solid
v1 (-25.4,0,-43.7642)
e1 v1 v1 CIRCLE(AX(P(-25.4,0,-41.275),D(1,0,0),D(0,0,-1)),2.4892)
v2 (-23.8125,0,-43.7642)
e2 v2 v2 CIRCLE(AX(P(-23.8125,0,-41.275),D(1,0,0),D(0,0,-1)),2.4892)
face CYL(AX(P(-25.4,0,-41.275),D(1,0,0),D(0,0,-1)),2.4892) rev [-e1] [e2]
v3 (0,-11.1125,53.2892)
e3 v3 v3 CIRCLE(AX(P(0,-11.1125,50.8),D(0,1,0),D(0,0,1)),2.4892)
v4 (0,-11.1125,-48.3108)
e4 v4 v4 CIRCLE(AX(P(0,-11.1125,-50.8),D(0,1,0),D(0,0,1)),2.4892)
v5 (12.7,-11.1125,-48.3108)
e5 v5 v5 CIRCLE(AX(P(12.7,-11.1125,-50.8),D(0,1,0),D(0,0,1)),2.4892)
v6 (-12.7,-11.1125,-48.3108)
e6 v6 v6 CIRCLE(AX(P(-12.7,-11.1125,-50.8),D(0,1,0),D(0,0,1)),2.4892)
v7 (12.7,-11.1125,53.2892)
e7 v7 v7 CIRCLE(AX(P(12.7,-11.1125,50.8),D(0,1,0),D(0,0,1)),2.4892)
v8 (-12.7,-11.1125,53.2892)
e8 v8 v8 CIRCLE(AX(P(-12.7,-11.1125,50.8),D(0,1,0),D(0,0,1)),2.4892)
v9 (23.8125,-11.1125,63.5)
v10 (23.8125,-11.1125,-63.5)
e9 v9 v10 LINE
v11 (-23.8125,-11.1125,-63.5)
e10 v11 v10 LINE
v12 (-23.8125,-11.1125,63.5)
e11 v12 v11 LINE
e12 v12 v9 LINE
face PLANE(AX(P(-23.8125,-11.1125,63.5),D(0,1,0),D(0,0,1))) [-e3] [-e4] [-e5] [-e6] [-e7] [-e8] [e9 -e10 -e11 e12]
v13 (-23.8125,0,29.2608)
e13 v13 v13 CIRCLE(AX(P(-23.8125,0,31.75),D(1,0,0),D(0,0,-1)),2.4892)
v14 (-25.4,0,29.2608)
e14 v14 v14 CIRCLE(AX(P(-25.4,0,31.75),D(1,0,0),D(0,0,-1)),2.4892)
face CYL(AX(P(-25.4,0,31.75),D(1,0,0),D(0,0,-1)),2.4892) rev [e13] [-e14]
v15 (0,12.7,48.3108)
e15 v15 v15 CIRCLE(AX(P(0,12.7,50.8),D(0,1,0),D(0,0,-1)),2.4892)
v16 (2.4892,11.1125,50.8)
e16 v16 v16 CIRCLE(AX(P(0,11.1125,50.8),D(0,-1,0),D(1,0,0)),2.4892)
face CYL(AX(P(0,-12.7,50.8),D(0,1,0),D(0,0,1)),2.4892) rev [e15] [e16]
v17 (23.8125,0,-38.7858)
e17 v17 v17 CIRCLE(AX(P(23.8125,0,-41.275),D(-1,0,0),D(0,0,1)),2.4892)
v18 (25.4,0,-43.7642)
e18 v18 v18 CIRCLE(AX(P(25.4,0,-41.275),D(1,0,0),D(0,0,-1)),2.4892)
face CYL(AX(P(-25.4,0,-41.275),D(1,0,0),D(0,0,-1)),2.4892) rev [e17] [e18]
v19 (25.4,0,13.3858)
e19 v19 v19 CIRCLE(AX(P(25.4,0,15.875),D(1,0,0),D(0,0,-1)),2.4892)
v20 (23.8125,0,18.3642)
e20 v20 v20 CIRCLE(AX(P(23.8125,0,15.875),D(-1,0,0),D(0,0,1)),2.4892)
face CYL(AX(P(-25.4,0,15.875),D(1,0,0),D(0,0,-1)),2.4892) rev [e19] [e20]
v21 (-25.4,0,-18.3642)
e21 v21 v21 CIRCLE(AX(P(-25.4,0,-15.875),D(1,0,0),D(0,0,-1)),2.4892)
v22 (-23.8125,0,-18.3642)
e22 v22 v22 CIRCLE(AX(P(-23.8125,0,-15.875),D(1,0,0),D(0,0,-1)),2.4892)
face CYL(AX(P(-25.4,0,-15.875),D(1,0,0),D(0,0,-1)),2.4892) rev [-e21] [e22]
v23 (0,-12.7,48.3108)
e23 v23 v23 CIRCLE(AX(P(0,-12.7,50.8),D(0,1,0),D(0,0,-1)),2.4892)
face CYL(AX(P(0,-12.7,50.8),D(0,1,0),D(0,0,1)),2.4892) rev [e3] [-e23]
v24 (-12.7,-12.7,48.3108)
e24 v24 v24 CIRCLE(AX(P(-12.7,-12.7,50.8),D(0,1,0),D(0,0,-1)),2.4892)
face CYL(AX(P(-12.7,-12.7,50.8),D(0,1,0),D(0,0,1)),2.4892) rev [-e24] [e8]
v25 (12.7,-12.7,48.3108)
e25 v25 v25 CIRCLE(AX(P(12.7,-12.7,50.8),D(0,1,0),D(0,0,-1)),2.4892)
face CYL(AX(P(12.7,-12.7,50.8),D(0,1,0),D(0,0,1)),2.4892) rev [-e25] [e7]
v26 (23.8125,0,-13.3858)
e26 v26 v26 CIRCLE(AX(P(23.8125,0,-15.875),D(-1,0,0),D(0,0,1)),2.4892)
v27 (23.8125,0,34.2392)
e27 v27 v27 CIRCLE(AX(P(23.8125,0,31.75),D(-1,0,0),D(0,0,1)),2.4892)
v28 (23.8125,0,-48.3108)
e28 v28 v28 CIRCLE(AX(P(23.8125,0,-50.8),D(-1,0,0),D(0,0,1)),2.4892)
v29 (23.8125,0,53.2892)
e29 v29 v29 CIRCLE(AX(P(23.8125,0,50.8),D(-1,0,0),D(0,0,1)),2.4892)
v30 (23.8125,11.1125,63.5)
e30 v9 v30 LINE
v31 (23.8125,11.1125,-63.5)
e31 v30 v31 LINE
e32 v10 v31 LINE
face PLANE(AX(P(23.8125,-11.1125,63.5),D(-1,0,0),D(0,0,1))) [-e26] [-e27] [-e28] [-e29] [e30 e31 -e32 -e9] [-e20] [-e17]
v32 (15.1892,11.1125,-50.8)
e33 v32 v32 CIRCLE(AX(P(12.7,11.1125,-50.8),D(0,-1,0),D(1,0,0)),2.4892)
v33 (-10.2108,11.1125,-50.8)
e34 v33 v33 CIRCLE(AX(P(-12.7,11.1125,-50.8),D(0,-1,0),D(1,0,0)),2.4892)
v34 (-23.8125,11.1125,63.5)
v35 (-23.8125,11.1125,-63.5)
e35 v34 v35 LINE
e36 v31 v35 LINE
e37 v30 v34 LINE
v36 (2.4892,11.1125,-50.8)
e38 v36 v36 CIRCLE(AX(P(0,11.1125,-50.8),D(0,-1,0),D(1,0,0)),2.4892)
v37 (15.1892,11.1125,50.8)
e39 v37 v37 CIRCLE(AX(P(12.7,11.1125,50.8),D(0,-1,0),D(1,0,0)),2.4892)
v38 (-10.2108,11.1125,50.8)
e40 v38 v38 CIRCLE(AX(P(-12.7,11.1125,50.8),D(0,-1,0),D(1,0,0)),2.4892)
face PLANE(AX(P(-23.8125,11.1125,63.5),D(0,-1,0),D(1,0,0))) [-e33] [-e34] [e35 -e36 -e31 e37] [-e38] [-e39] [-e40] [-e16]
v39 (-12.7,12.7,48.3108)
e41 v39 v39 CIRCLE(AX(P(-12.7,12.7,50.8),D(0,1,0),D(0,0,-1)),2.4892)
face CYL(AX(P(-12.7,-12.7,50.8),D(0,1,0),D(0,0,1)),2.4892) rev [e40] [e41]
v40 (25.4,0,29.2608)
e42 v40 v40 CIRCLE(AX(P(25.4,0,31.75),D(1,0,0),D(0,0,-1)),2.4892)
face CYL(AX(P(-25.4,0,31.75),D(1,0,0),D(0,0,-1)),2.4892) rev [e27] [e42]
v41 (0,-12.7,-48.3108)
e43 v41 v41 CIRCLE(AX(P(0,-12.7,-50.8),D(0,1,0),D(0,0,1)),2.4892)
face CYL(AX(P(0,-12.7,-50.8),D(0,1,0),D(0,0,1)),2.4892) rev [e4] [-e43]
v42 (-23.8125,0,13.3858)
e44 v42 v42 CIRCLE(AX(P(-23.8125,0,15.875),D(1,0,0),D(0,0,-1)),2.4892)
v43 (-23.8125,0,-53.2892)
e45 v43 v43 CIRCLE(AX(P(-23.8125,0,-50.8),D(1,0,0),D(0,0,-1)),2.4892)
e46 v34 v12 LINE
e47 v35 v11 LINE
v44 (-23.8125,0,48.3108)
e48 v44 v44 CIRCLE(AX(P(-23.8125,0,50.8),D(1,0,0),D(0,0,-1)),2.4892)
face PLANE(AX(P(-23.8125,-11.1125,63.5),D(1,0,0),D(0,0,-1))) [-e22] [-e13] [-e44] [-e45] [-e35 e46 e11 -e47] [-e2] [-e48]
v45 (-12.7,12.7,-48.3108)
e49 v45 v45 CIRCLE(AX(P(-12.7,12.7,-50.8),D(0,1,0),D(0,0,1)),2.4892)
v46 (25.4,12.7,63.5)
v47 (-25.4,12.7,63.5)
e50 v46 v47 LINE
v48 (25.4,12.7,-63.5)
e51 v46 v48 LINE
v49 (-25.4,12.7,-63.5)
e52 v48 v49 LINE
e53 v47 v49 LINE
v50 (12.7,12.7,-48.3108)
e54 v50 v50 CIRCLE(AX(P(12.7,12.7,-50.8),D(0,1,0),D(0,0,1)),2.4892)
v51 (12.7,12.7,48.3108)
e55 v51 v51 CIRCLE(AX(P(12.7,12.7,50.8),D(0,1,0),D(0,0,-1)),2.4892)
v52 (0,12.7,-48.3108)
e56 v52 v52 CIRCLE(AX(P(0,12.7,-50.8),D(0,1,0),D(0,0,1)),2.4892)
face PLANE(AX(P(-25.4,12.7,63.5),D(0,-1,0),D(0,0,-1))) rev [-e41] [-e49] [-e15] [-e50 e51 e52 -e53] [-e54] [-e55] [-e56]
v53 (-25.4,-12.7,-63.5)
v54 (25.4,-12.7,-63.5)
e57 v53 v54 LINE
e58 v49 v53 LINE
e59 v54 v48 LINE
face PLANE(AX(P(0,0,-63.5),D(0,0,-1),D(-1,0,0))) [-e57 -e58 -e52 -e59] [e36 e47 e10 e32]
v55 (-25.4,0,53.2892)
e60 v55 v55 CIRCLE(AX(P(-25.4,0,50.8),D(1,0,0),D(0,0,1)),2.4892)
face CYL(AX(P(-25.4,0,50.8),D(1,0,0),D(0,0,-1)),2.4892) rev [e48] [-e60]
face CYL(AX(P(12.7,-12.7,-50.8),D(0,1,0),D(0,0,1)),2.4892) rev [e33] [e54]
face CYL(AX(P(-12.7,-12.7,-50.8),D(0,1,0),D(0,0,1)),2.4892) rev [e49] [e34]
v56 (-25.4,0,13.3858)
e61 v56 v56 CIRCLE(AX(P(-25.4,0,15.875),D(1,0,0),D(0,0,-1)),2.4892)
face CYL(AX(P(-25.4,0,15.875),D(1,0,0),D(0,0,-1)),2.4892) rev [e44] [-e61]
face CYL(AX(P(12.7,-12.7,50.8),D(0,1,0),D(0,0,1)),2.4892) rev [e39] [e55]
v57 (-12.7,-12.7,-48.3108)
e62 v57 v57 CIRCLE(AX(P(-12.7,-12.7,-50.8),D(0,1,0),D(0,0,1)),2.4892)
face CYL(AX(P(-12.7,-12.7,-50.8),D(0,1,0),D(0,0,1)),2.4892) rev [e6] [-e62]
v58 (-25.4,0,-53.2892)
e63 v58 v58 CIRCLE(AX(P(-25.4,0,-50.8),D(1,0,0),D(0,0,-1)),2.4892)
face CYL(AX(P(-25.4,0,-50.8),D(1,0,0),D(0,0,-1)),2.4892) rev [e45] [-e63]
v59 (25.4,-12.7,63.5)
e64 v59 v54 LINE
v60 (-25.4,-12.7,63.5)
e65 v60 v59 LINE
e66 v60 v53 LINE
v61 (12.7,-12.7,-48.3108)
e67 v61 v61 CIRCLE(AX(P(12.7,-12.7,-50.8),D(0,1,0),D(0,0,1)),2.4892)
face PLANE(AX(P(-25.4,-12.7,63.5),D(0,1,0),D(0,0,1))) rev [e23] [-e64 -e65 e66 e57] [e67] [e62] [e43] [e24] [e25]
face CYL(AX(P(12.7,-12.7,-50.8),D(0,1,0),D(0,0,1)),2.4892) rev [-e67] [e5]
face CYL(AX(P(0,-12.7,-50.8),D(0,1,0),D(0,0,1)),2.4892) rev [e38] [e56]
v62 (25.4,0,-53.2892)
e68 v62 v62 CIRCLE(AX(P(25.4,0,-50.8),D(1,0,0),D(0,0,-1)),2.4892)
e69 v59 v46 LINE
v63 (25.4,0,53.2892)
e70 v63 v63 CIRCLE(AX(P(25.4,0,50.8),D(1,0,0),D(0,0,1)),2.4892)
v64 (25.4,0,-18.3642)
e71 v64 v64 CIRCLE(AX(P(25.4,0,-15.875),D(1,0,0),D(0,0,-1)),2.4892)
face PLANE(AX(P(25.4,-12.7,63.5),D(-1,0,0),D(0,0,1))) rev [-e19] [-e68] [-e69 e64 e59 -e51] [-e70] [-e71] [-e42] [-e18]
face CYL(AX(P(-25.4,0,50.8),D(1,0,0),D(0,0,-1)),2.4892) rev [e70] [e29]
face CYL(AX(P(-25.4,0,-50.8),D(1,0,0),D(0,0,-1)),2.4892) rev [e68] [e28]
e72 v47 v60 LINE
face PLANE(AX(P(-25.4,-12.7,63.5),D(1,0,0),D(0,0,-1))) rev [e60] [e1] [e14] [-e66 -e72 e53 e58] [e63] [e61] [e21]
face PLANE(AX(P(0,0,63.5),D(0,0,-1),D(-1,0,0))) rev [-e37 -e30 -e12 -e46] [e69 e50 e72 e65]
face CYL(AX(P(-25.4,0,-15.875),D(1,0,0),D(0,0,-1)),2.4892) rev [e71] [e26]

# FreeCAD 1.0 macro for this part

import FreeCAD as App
import Part
import Sketcher

V = App.Vector
Q = App.Units.Quantity


def add_polygon(sketch, points):
    """Adds a closed chain of lines whose ends are joined by coincident constraints."""
    first, n = sketch.GeometryCount, len(points)
    for a, b in zip(points, points[1:] + points[:1]):
        sketch.addGeometry(Part.LineSegment(App.Vector(*a, 0), App.Vector(*b, 0)), False)
    for i in range(n):
        sketch.addConstraint(Sketcher.Constraint("Coincident", first + i, 2, first + (i + 1) % n, 1))

doc = App.newDocument("Part")
body = doc.addObject("PartDesign::Body", "Body")

# Sketch on XY plane
sketch1 = body.newObject("Sketcher::SketchObject", "Sketch")
sketch1.AttachmentSupport = (doc.getObject("XY_Plane"), [""])
sketch1.MapMode = "FlatFace"
add_polygon(sketch1, [(-25, 13), (-25, -13), (25, -13), (25, 13)])  # lines 0-3
add_polygon(sketch1, [(24, -11), (-24, -11), (-24, 11), (24, 11)])  # lines 4-7
sketch1.addConstraint([
    Sketcher.Constraint("Vertical", 0),
    Sketcher.Constraint("Horizontal", 1),
    Sketcher.Constraint("Vertical", 2),
    Sketcher.Constraint("Horizontal", 3),
    Sketcher.Constraint("Horizontal", 4),
    Sketcher.Constraint("Vertical", 5),
    Sketcher.Constraint("Horizontal", 6),
    Sketcher.Constraint("Vertical", 7),
    Sketcher.Constraint("Symmetric", 0, 2, 2, 2, -1, 1),
    Sketcher.Constraint("Symmetric", 4, 2, 6, 2, -1, 1),
    Sketcher.Constraint("DistanceX", 1, 1, 1, 2, Q("2 in")),
    Sketcher.Constraint("DistanceY", 0, 2, 0, 1, Q("1 in")),
    Sketcher.Constraint("DistanceX", 4, 2, 4, 1, Q("1.875 in")),
    Sketcher.Constraint("DistanceY", 5, 1, 5, 2, Q("0.875 in")),
])
pad1 = body.newObject("PartDesign::Pad", "Pad")
pad1.Profile = sketch1
pad1.Length = Q("5 in")
pad1.Midplane = True

# Sketch on XZ plane
sketch2 = body.newObject("Sketcher::SketchObject", "Sketch001")
sketch2.AttachmentSupport = (doc.getObject("XZ_Plane"), [""])
sketch2.MapMode = "FlatFace"
sketch2.AttachmentOffset = App.Placement(V(0, 0, -0.5 * 25.4), App.Rotation())
sketch2.addGeometry([
    Part.Circle(V(-12.7, -50.8, 0), V(0, 0, 1), 2.5),  # 0
    Part.Circle(V(0, -50.8, 0), V(0, 0, 1), 2.5),  # 1
    Part.Circle(V(12.7, -50.8, 0), V(0, 0, 1), 2.5),  # 2
    Part.Circle(V(12.7, 50.8, 0), V(0, 0, 1), 2.5),  # 3
    Part.Circle(V(0, 50.8, 0), V(0, 0, 1), 2.5),  # 4
    Part.Circle(V(-12.7, 50.8, 0), V(0, 0, 1), 2.5),  # 5
], False)
sketch2.addConstraint([
    Sketcher.Constraint("Equal", 0, 1),
    Sketcher.Constraint("Equal", 1, 2),
    Sketcher.Constraint("Equal", 2, 3),
    Sketcher.Constraint("Equal", 3, 4),
    Sketcher.Constraint("Equal", 4, 5),
    Sketcher.Constraint("Symmetric", 0, 3, 3, 3, -1, 1),
    Sketcher.Constraint("Symmetric", 1, 3, 4, 3, -1, 1),
    Sketcher.Constraint("Symmetric", 2, 3, 5, 3, -1, 1),
    Sketcher.Constraint("Symmetric", 0, 3, 2, 3, -2),
    Sketcher.Constraint("PointOnObject", 1, 3, -2),
    Sketcher.Constraint("Horizontal", 0, 3, 1, 3),
    Sketcher.Constraint("Diameter", 0, Q("0.196 in")),
    Sketcher.Constraint("DistanceY", 0, 3, -1, 1, Q("2 in")),
    Sketcher.Constraint("DistanceX", 0, 3, 2, 3, Q("1 in")),
])
pocket1 = body.newObject("PartDesign::Pocket", "Pocket")
pocket1.Profile = sketch2
pocket1.Type = "ThroughAll"
pocket1.Reversed = True

# Sketch on YZ plane
sketch3 = body.newObject("Sketcher::SketchObject", "Sketch002")
sketch3.AttachmentSupport = (doc.getObject("YZ_Plane"), [""])
sketch3.MapMode = "FlatFace"
sketch3.AttachmentOffset = App.Placement(V(0, 0, 1 * 25.4), App.Rotation())
sketch3.addGeometry([
    Part.Circle(V(0, -50.8, 0), V(0, 0, 1), 2.5),  # 0
    Part.Circle(V(0, -41.3, 0), V(0, 0, 1), 2.5),  # 1
    Part.Circle(V(0, -15.9, 0), V(0, 0, 1), 2.5),  # 2
    Part.Circle(V(0, 50.8, 0), V(0, 0, 1), 2.5),  # 3
    Part.Circle(V(0, 31.8, 0), V(0, 0, 1), 2.5),  # 4
    Part.Circle(V(0, 15.9, 0), V(0, 0, 1), 2.5),  # 5
], False)
sketch3.addConstraint([
    Sketcher.Constraint("Equal", 0, 1),
    Sketcher.Constraint("Equal", 1, 2),
    Sketcher.Constraint("Equal", 2, 3),
    Sketcher.Constraint("Equal", 3, 4),
    Sketcher.Constraint("Equal", 4, 5),
    Sketcher.Constraint("Symmetric", 0, 3, 3, 3, -1, 1),
    Sketcher.Constraint("Symmetric", 2, 3, 5, 3, -1, 1),
    Sketcher.Constraint("PointOnObject", 0, 3, -2),
    Sketcher.Constraint("PointOnObject", 1, 3, -2),
    Sketcher.Constraint("PointOnObject", 2, 3, -2),
    Sketcher.Constraint("PointOnObject", 4, 3, -2),
    Sketcher.Constraint("Diameter", 0, Q("0.196 in")),
    Sketcher.Constraint("DistanceY", 0, 3, -1, 1, Q("2 in")),
    Sketcher.Constraint("DistanceY", 1, 3, 2, 3, Q("1 in")),
    Sketcher.Constraint("DistanceY", -1, 1, 4, 3, Q("1.25 in")),
    Sketcher.Constraint("DistanceY", 2, 3, 5, 3, Q("1.25 in")),
])
pocket2 = body.newObject("PartDesign::Pocket", "Pocket001")
pocket2.Profile = sketch3
pocket2.Type = "ThroughAll"

doc.recompute()
